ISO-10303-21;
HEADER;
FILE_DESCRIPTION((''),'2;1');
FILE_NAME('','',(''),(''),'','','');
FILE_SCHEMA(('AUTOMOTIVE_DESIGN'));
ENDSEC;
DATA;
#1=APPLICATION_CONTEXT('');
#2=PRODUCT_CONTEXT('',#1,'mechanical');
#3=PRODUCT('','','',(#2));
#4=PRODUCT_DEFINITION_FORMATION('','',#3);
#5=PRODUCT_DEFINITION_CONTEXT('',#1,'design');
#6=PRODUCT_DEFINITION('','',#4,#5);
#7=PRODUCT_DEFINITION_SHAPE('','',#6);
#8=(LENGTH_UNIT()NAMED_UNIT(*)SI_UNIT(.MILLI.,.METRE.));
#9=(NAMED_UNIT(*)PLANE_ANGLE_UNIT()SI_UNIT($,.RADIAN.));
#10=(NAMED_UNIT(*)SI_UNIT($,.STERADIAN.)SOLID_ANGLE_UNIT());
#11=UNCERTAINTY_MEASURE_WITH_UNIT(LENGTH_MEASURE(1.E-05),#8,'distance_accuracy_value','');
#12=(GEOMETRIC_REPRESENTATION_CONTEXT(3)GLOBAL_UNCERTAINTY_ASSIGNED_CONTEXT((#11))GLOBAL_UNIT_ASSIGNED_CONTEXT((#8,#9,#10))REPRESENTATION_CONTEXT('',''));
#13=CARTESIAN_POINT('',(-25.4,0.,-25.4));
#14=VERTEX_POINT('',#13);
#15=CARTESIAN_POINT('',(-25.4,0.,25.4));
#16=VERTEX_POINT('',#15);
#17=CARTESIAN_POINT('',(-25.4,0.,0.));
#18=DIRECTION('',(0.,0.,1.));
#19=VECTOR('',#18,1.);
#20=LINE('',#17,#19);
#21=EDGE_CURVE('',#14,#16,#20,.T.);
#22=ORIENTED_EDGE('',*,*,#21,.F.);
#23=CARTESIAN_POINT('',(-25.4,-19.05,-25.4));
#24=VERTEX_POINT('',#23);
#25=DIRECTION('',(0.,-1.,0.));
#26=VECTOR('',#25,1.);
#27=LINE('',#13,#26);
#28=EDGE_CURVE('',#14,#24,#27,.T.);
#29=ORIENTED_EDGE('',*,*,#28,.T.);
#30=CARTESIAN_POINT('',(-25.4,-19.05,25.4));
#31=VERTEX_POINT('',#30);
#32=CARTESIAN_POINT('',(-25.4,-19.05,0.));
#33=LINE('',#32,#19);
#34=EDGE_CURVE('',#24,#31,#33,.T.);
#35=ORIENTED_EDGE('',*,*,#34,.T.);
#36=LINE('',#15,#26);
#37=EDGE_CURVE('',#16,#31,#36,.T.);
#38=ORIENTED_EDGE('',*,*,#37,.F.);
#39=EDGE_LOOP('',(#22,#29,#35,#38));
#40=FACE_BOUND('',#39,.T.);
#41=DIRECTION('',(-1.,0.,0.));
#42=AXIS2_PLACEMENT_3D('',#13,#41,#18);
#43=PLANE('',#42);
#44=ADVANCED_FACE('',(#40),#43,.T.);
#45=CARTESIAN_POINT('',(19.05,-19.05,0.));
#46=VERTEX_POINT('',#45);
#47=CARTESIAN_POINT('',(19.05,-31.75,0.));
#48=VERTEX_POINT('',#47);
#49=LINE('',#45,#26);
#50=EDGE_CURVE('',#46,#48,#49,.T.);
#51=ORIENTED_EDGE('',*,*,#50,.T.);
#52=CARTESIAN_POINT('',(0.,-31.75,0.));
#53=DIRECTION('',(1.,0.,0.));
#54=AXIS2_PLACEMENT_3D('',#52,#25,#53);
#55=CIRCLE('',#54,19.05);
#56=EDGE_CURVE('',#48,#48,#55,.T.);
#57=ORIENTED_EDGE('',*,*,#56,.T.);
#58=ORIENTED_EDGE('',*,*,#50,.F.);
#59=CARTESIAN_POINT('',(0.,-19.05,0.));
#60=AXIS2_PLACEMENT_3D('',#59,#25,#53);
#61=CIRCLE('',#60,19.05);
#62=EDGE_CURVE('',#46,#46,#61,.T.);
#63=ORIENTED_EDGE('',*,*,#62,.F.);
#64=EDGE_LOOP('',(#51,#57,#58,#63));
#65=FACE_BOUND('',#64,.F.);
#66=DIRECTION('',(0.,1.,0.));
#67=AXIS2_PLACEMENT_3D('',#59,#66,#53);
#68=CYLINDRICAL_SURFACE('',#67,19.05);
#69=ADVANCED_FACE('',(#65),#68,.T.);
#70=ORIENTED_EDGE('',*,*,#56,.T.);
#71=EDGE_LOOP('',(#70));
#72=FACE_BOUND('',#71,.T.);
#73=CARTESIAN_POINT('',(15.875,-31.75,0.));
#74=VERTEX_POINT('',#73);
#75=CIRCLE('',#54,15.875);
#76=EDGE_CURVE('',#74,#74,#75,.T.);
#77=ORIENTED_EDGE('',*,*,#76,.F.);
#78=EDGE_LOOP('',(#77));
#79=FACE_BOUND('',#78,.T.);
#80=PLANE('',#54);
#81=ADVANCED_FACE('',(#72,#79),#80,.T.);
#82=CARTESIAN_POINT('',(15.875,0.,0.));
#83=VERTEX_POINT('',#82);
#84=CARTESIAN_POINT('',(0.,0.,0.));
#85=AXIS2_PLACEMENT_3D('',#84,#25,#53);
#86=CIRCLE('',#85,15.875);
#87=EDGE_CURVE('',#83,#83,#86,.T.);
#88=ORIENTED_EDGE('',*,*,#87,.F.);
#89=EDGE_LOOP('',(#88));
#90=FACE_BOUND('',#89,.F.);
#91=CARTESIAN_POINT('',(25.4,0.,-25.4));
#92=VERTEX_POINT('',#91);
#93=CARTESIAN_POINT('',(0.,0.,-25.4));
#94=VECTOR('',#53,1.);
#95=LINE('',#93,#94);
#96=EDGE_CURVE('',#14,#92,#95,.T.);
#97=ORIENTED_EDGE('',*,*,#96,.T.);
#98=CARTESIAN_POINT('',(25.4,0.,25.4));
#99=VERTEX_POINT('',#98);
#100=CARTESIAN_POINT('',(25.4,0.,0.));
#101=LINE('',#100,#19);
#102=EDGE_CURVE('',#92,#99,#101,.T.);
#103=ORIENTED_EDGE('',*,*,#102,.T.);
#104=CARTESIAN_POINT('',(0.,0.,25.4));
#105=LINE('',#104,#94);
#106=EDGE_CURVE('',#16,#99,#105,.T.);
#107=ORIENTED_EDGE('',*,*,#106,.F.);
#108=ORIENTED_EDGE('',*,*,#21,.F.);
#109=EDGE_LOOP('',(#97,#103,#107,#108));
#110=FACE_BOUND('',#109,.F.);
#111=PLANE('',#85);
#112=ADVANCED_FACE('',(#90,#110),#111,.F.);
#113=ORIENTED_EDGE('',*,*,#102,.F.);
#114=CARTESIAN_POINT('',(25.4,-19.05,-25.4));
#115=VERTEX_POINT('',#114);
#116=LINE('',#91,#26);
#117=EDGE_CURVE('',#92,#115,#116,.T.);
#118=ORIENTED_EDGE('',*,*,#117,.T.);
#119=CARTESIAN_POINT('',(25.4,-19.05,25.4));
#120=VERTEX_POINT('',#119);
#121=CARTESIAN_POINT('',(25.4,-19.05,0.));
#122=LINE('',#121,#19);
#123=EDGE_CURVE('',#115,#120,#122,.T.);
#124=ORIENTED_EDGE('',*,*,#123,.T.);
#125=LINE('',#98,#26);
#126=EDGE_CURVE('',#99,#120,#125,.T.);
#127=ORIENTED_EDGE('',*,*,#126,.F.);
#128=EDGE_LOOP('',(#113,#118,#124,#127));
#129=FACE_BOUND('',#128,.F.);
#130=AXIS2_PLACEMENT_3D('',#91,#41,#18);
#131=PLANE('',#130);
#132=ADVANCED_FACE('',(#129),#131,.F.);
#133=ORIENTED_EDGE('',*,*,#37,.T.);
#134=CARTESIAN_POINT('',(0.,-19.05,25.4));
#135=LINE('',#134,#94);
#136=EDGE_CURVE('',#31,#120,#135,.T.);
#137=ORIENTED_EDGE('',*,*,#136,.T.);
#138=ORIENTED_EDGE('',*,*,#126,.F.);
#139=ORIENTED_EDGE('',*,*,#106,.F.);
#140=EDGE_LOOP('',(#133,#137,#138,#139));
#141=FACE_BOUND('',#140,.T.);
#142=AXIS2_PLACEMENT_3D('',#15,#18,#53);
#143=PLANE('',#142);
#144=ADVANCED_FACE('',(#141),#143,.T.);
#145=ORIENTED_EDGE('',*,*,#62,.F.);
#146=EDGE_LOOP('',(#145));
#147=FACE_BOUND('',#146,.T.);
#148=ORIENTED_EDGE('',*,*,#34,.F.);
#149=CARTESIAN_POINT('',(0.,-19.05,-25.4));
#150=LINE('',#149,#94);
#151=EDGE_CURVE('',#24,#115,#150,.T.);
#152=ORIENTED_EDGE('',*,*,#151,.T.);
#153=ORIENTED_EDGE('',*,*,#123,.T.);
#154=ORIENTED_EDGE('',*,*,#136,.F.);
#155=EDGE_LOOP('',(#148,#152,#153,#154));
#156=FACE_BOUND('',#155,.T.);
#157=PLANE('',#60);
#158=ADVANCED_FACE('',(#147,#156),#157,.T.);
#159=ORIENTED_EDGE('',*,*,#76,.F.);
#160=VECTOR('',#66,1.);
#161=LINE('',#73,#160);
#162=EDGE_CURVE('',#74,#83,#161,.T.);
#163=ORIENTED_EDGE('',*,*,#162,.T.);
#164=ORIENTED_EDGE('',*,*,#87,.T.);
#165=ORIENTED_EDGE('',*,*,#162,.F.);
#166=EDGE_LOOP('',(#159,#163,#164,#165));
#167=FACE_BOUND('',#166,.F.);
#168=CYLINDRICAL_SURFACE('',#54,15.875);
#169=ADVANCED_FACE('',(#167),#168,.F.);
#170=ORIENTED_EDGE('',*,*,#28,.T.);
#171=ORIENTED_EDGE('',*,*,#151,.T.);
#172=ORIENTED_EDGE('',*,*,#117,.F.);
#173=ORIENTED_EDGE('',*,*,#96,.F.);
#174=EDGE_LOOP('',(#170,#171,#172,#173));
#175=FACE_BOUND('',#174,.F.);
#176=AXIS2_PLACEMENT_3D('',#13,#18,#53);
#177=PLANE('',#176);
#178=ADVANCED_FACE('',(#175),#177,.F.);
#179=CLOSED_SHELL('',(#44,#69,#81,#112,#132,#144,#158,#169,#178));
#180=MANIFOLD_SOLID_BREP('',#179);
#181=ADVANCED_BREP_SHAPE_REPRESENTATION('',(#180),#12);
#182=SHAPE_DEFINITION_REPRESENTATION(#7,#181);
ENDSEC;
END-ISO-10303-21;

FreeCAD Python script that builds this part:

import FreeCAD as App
import Part
import Sketcher
from FreeCAD import Vector
Q = App.Units.Quantity


def add_polygon(sketch, points):
    """Adds a closed chain of lines whose ends are joined by coincident constraints."""
    first, n = sketch.GeometryCount, len(points)
    for a, b in zip(points, points[1:] + points[:1]):
        sketch.addGeometry(Part.LineSegment(App.Vector(*a, 0), App.Vector(*b, 0)), False)
    for i in range(n):
        sketch.addConstraint(Sketcher.Constraint("Coincident", first + i, 2, first + (i + 1) % n, 1))

doc = App.newDocument("Part")
body = doc.addObject("PartDesign::Body", "Body")

# Sketch on XZ plane
sketch1 = doc.addObject("Sketcher::SketchObject", "Sketch")
body.addObject(sketch1)
sketch1.AttachmentSupport = (doc.XZ_Plane, [""])
sketch1.MapMode = "FlatFace"
add_polygon(sketch1, [(-25, 25), (-25, -25), (25, -25), (25, 25)])  # lines 0-3
sketch1.addConstraint(Sketcher.Constraint("Vertical", 0))
sketch1.addConstraint(Sketcher.Constraint("Horizontal", 1))
sketch1.addConstraint(Sketcher.Constraint("Vertical", 2))
sketch1.addConstraint(Sketcher.Constraint("Horizontal", 3))
sketch1.addConstraint(Sketcher.Constraint("Symmetric", 0, 2, 2, 2, -1, 1))
sketch1.addConstraint(Sketcher.Constraint("Equal", 3, 0))
sketch1.addConstraint(Sketcher.Constraint("DistanceX", 1, 1, 1, 2, Q("2 in")))
pad1 = doc.addObject("PartDesign::Pad", "Pad")
body.addObject(pad1)
pad1.Profile = sketch1
pad1.Length = Q("0.75 in")

# Sketch on XZ plane
sketch2 = doc.addObject("Sketcher::SketchObject", "Sketch001")
body.addObject(sketch2)
sketch2.AttachmentSupport = (doc.XZ_Plane, [""])
sketch2.MapMode = "FlatFace"
sketch2.AttachmentOffset = App.Placement(Vector(0, 0, 0.75 * 25.4), App.Rotation())
sketch2.addGeometry(Part.Circle(Vector(0, 0, 0), Vector(0, 0, 1), 19), False)
sketch2.addConstraint(Sketcher.Constraint("Coincident", 0, 3, -1, 1))
sketch2.addConstraint(Sketcher.Constraint("Diameter", 0, Q("1.5 in")))
pad2 = doc.addObject("PartDesign::Pad", "Pad001")
body.addObject(pad2)
pad2.Profile = sketch2
pad2.Length = Q("0.5 in")

# Sketch on XZ plane
sketch3 = doc.addObject("Sketcher::SketchObject", "Sketch002")
body.addObject(sketch3)
sketch3.AttachmentSupport = (doc.XZ_Plane, [""])
sketch3.MapMode = "FlatFace"
sketch3.AttachmentOffset = App.Placement(Vector(0, 0, 1.25 * 25.4), App.Rotation())
sketch3.addGeometry(Part.Circle(Vector(0, 0, 0), Vector(0, 0, 1), 16), False)
sketch3.addConstraint(Sketcher.Constraint("Coincident", 0, 3, -1, 1))
sketch3.addConstraint(Sketcher.Constraint("Diameter", 0, Q("1.25 in")))
pocket1 = doc.addObject("PartDesign::Pocket", "Pocket")
body.addObject(pocket1)
pocket1.Profile = sketch3
pocket1.Length = Q("1.98 in")

doc.recompute()
